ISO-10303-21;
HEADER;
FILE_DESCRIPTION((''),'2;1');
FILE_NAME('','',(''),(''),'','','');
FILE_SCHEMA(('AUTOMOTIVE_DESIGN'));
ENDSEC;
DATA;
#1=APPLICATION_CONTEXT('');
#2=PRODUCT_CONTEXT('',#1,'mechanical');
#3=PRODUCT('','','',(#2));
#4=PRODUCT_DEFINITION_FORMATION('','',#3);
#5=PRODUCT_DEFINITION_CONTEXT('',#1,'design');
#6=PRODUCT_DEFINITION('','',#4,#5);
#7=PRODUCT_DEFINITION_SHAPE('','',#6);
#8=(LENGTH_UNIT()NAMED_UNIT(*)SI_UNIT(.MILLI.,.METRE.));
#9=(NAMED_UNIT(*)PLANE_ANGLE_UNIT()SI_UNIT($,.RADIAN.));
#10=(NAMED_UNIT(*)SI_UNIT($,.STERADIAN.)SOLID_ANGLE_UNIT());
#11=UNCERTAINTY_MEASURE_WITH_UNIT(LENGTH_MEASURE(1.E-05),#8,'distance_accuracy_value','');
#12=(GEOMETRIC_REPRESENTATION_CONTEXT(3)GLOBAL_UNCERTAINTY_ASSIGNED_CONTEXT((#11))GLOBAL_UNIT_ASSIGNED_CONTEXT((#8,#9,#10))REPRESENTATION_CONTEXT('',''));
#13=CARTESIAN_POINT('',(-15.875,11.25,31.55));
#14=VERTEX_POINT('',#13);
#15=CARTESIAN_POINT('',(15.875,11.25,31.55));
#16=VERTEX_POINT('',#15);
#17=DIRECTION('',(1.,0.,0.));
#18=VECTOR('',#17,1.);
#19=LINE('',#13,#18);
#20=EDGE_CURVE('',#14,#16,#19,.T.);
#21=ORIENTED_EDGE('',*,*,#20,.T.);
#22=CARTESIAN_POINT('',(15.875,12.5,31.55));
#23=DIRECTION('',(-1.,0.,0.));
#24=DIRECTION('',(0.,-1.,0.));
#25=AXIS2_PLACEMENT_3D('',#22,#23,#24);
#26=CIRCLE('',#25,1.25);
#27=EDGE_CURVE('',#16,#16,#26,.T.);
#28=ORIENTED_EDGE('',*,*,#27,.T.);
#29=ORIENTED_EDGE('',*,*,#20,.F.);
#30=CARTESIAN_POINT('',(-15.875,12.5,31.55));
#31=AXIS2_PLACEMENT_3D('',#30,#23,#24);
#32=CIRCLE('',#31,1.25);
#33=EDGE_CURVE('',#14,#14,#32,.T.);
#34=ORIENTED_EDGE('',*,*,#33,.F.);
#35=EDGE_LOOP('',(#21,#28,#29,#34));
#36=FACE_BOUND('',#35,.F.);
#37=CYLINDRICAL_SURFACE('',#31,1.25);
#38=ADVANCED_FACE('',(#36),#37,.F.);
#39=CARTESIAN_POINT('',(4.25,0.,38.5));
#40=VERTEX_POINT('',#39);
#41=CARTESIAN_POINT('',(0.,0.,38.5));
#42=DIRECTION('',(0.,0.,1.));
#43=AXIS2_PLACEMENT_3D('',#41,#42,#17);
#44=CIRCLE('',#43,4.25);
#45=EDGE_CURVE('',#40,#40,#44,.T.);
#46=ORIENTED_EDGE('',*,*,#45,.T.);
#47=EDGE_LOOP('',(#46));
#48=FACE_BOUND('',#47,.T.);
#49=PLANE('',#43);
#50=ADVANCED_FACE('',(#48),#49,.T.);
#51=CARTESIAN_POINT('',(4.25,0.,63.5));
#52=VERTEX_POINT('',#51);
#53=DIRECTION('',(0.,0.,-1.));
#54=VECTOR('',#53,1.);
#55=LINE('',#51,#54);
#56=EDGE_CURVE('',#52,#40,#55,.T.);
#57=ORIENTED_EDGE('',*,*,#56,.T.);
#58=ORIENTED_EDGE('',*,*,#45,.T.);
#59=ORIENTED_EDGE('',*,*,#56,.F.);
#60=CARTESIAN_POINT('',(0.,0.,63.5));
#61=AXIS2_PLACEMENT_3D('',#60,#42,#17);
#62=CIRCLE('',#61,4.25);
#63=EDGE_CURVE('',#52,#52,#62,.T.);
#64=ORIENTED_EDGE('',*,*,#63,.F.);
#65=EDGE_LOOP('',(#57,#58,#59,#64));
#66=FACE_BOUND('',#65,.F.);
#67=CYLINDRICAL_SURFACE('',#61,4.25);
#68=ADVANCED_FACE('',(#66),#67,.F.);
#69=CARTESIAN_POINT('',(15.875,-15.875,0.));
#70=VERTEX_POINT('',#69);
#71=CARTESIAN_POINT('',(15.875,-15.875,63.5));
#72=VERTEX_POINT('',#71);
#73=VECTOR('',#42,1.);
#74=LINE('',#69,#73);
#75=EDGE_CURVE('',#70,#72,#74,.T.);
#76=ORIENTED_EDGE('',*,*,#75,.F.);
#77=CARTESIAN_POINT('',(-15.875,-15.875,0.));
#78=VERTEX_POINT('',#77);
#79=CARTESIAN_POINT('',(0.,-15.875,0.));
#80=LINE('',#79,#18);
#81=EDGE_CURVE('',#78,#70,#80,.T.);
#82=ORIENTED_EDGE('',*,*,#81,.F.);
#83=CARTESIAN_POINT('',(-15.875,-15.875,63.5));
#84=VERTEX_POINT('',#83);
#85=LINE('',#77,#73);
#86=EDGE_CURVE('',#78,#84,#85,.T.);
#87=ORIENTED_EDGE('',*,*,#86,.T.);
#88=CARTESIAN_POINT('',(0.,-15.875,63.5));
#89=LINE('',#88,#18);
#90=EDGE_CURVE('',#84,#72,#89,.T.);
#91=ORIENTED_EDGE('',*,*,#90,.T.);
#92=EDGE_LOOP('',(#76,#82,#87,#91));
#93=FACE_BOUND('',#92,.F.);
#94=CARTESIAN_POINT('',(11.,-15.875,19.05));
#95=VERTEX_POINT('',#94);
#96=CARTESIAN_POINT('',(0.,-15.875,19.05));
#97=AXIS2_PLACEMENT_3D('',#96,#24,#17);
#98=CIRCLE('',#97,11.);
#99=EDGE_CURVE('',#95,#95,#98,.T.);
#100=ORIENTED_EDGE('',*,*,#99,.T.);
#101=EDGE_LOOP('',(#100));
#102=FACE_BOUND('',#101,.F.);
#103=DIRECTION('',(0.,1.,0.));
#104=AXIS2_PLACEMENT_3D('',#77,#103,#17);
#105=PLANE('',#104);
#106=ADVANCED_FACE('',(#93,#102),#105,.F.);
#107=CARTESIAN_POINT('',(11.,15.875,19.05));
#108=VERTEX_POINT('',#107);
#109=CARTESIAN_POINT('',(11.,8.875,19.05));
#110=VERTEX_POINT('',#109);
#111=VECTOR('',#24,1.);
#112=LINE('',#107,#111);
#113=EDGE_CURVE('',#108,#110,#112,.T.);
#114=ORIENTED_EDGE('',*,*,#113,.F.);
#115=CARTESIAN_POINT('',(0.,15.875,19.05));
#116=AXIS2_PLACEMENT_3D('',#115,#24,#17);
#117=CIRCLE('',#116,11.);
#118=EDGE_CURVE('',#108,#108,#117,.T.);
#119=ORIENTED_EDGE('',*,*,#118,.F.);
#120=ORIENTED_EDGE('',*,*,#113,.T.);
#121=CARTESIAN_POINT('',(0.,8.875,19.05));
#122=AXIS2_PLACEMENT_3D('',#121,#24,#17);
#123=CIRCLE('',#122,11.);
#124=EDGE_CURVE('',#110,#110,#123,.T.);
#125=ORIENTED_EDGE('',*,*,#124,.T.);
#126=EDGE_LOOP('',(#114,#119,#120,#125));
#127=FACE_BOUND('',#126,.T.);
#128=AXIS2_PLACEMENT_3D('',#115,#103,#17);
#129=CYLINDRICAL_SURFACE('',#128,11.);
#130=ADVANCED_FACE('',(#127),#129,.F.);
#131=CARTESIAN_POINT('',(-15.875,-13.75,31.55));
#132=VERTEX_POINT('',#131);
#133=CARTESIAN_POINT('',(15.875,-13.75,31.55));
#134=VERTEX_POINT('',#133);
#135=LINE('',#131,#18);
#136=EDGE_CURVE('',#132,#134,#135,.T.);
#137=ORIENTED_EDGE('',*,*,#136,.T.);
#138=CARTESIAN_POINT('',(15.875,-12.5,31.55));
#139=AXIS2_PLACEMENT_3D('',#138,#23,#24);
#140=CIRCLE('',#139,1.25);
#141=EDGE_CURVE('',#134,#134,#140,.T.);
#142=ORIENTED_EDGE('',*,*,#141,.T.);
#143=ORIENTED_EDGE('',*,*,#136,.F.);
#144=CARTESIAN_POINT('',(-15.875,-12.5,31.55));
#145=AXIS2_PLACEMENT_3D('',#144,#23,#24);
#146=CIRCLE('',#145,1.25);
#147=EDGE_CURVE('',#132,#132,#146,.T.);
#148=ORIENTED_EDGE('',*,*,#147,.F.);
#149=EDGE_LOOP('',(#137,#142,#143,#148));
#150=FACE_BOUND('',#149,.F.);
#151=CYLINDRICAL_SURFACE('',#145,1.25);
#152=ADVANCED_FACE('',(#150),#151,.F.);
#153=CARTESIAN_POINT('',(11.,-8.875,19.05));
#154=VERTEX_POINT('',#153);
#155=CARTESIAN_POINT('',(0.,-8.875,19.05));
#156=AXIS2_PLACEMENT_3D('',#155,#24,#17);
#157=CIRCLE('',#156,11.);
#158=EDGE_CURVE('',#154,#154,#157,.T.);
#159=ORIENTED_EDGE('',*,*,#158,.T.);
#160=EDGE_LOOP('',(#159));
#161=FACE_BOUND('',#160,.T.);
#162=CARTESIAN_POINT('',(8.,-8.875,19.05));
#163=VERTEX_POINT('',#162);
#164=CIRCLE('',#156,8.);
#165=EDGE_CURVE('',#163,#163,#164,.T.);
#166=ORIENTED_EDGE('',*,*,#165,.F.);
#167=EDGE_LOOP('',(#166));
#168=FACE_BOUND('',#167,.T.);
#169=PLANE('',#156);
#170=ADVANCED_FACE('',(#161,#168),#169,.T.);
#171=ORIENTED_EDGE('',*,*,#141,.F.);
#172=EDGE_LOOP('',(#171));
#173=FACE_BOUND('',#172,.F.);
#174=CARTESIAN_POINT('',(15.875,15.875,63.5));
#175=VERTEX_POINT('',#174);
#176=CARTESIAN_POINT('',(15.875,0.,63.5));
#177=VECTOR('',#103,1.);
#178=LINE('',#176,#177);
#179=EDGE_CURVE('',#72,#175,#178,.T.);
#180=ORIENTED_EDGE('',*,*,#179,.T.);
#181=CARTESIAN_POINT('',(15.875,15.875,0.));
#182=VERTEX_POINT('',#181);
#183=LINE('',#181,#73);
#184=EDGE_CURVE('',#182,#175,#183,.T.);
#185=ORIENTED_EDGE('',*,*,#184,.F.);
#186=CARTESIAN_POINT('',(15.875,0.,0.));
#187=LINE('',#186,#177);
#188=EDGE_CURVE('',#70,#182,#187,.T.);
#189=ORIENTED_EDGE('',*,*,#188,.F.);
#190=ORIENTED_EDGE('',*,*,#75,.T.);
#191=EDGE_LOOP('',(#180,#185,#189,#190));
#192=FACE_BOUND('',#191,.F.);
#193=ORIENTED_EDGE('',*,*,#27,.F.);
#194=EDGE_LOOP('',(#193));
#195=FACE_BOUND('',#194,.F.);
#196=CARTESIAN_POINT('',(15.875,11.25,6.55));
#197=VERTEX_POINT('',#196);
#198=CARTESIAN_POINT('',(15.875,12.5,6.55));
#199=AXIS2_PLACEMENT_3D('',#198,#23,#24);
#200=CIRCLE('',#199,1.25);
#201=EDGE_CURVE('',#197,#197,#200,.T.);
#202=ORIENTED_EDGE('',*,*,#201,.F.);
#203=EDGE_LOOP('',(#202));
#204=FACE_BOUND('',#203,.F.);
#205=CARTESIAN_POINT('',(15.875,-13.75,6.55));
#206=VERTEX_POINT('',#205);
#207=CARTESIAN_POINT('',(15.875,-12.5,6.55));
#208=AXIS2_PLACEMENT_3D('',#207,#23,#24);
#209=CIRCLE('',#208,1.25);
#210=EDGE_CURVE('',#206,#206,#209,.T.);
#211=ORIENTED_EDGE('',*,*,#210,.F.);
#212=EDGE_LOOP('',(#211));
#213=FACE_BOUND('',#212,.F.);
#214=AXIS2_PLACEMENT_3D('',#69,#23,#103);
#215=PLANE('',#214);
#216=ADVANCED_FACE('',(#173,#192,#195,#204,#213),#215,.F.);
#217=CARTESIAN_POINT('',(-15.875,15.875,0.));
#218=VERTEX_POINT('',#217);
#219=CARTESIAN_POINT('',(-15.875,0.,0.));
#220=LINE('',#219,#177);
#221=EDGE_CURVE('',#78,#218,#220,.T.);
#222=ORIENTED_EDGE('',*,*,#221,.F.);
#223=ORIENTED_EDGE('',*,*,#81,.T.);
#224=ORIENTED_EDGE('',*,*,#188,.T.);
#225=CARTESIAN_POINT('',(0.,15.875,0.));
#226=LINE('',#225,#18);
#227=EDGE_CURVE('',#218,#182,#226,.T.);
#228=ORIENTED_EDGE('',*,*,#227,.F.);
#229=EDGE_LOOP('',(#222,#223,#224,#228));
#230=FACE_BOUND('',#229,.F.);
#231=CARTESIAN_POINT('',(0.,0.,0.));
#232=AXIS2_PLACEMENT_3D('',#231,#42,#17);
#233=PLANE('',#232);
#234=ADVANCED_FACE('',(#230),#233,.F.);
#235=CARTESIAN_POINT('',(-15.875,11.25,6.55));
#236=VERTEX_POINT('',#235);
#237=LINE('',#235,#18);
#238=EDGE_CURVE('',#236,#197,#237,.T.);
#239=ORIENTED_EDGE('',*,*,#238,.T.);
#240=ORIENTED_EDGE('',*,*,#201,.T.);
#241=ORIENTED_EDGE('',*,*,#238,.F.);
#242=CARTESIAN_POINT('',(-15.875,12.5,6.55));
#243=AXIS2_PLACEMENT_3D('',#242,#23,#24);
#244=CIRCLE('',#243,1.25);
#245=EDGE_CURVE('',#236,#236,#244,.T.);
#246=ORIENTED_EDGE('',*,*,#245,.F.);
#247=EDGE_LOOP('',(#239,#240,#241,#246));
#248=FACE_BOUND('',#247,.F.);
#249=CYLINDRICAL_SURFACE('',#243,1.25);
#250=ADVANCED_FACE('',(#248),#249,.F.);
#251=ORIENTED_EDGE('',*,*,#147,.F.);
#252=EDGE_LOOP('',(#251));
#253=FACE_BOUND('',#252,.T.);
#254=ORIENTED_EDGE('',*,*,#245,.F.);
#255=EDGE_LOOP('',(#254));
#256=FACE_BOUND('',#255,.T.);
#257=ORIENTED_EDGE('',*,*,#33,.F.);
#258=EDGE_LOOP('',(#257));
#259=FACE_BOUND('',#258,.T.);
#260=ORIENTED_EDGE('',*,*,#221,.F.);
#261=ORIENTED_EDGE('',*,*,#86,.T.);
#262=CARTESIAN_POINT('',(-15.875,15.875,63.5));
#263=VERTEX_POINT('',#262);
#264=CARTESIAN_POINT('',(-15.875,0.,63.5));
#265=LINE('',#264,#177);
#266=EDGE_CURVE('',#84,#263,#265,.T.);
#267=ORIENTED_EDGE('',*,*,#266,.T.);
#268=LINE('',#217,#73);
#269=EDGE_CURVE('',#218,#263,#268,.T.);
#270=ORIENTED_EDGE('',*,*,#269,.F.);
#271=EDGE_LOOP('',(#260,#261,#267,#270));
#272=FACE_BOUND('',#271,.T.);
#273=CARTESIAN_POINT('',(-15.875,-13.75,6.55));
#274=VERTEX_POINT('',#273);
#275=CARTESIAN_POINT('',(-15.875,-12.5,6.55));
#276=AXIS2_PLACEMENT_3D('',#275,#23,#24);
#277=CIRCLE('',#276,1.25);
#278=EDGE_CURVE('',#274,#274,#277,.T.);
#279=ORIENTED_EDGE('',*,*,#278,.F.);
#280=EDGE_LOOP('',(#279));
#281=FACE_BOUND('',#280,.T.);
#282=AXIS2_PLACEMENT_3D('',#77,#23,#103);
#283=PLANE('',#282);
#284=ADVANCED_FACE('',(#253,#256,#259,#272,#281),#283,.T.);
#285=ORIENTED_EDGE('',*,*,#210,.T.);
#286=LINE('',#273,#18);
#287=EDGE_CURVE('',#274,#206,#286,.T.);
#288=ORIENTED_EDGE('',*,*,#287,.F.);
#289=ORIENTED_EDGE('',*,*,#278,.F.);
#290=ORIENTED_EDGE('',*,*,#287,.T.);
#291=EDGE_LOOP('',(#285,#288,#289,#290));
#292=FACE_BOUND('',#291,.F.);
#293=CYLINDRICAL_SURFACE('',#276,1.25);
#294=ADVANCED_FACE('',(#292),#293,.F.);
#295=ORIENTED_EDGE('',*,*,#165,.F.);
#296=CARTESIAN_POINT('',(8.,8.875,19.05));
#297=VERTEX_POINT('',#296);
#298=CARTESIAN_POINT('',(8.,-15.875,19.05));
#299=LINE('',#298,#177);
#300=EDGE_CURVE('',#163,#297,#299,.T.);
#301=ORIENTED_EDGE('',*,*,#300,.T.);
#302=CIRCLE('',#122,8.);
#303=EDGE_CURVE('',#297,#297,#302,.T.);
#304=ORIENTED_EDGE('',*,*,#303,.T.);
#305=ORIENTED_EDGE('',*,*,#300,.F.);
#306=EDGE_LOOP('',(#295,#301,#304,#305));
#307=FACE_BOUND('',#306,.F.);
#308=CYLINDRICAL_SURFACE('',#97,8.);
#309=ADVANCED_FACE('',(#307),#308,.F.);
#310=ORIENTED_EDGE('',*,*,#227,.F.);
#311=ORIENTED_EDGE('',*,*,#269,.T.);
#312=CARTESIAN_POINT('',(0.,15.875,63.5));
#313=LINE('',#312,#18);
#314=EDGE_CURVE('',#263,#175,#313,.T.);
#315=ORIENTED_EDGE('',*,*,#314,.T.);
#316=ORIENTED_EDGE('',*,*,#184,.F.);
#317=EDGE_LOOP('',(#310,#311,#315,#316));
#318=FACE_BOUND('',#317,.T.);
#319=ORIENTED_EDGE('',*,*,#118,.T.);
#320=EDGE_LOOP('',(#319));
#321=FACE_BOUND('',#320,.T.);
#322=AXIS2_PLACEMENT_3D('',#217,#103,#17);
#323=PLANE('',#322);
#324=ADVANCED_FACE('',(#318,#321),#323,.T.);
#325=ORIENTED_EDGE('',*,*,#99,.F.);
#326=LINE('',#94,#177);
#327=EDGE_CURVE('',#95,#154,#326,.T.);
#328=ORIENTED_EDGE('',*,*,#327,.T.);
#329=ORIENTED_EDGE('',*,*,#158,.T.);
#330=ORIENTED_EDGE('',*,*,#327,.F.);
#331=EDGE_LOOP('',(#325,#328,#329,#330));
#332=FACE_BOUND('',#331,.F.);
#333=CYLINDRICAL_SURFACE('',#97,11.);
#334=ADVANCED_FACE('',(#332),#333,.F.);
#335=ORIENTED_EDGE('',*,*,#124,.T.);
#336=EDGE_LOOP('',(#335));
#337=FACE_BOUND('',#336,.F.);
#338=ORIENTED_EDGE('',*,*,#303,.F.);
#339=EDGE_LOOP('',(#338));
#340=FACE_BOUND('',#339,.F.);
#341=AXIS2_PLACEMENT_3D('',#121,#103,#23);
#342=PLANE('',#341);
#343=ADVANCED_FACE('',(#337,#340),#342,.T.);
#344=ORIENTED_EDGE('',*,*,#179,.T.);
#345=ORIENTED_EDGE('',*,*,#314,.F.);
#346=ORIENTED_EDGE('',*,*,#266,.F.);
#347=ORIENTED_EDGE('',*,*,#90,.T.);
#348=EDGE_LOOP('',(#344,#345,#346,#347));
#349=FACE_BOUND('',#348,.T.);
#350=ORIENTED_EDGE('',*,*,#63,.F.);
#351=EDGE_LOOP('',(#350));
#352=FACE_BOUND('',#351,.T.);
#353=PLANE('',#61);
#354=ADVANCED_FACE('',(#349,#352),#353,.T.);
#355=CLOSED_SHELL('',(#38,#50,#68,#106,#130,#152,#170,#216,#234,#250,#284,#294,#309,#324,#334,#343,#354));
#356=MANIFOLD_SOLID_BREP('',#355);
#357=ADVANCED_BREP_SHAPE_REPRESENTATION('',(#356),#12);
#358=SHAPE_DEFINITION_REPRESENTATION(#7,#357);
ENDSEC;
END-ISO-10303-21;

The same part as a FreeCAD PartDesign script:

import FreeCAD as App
import Part
import Sketcher

doc = App.newDocument("Part")
body = doc.addObject("PartDesign::Body", "Body")

sketch1 = body.newObject("Sketcher::SketchObject", "Sketch")
sketch1.AttachmentSupport = (doc.getObject("XY_Plane"), [""])
sketch1.MapMode = "FlatFace"
sketch1.addGeometry([
    Part.LineSegment(App.Vector(-16, 16, 0), App.Vector(-16, -16, 0)),
    Part.LineSegment(App.Vector(-16, -16, 0), App.Vector(16, -16, 0)),
    Part.LineSegment(App.Vector(16, -16, 0), App.Vector(16, 16, 0)),
    Part.LineSegment(App.Vector(16, 16, 0), App.Vector(-16, 16, 0)),
], False)
sketch1.addConstraint([
    Sketcher.Constraint("Coincident", 0, 2, 1, 1),
    Sketcher.Constraint("Coincident", 1, 2, 2, 1),
    Sketcher.Constraint("Coincident", 2, 2, 3, 1),
    Sketcher.Constraint("Coincident", 3, 2, 0, 1),
    Sketcher.Constraint("Vertical", 0),
    Sketcher.Constraint("Horizontal", 1),
    Sketcher.Constraint("Vertical", 2),
    Sketcher.Constraint("Horizontal", 3),
    Sketcher.Constraint("Symmetric", 0, 2, 2, 2, -1, 1),
    Sketcher.Constraint("Equal", 3, 0),
    Sketcher.Constraint("DistanceX", 1, 1, 1, 2, 31.75),
])
pad1 = body.newObject("PartDesign::Pad", "Pad")
pad1.Profile = sketch1
pad1.Length = 63.5

sketch2 = body.newObject("Sketcher::SketchObject", "Sketch001")
sketch2.AttachmentSupport = (doc.getObject("XZ_Plane"), [""])
sketch2.MapMode = "FlatFace"
sketch2.AttachmentOffset = App.Placement(App.Vector(0, 0, 15.875), App.Rotation())
sketch2.addGeometry(Part.Circle(App.Vector(0, 19, 0), App.Vector(0, 0, 1), 11), False)
sketch2.addConstraint([
    Sketcher.Constraint("PointOnObject", 0, 3, -2),
    Sketcher.Constraint("Diameter", 0, 22.0),
    Sketcher.Constraint("DistanceY", -1, 1, 0, 3, 19.05),
])
pocket1 = body.newObject("PartDesign::Pocket", "Pocket")
pocket1.Profile = sketch2
pocket1.Length = 7
doc.recompute()

mirrored = body.newObject("PartDesign::Mirrored", "Mirrored")
mirrored.Originals = [pocket1]
mirrored.MirrorPlane = (doc.getObject("XZ_Plane"), [""])
body.Tip = mirrored

sketch3 = body.newObject("Sketcher::SketchObject", "Sketch002")
sketch3.AttachmentSupport = (doc.getObject("XZ_Plane"), [""])
sketch3.MapMode = "FlatFace"
sketch3.AttachmentOffset = App.Placement(App.Vector(0, 0, 15.875), App.Rotation())
sketch3.addGeometry(Part.Circle(App.Vector(0, 19, 0), App.Vector(0, 0, 1), 8), False)
sketch3.addConstraint([
    Sketcher.Constraint("PointOnObject", 0, 3, -2),
    Sketcher.Constraint("Diameter", 0, 16.0),
    Sketcher.Constraint("DistanceY", -1, 1, 0, 3, 19.05),
])
pocket2 = body.newObject("PartDesign::Pocket", "Pocket001")
pocket2.Profile = sketch3
pocket2.Type = "ThroughAll"

sketch4 = body.newObject("Sketcher::SketchObject", "Sketch003")
sketch4.AttachmentSupport = (doc.getObject("YZ_Plane"), [""])
sketch4.MapMode = "FlatFace"
sketch4.AttachmentOffset = App.Placement(App.Vector(0, 0, -15.875), App.Rotation())
sketch4.addGeometry([
    Part.Circle(App.Vector(-12.5, 31.6, 0), App.Vector(0, 0, 1), 1.2),
    Part.Circle(App.Vector(-12.5, 6.5, 0), App.Vector(0, 0, 1), 1.2),
    Part.Circle(App.Vector(12.5, 6.5, 0), App.Vector(0, 0, 1), 1.2),
    Part.Circle(App.Vector(12.5, 31.6, 0), App.Vector(0, 0, 1), 1.2),
], False)
sketch4.addConstraint([
    Sketcher.Constraint("Equal", 0, 1),
    Sketcher.Constraint("Equal", 1, 2),
    Sketcher.Constraint("Equal", 2, 3),
    Sketcher.Constraint("Symmetric", 1, 3, 2, 3, -2),
    Sketcher.Constraint("Symmetric", 0, 3, 3, 3, -2),
    Sketcher.Constraint("Vertical", 0, 3, 1, 3),
    Sketcher.Constraint("Diameter", 0, 2.5),
    Sketcher.Constraint("DistanceY", 1, 3, 0, 3, 25.0),
    Sketcher.Constraint("DistanceX", 1, 3, 2, 3, 25.0),
    Sketcher.Constraint("DistanceY", -1, 1, 0, 3, 31.55),
])
pocket3 = body.newObject("PartDesign::Pocket", "Pocket002")
pocket3.Profile = sketch4
pocket3.Type = "ThroughAll"
pocket3.Reversed = True

sketch5 = body.newObject("Sketcher::SketchObject", "Sketch004")
sketch5.AttachmentSupport = (doc.getObject("XY_Plane"), [""])
sketch5.MapMode = "FlatFace"
sketch5.AttachmentOffset = App.Placement(App.Vector(0, 0, 63.5), App.Rotation())
sketch5.addGeometry(Part.Circle(App.Vector(0, 0, 0), App.Vector(0, 0, 1), 4.2), False)
sketch5.addConstraint([
    Sketcher.Constraint("Coincident", 0, 3, -1, 1),
    Sketcher.Constraint("Diameter", 0, 8.5),
])
pocket4 = body.newObject("PartDesign::Pocket", "Pocket003")
pocket4.Profile = sketch5
pocket4.Length = 25

doc.recompute()
